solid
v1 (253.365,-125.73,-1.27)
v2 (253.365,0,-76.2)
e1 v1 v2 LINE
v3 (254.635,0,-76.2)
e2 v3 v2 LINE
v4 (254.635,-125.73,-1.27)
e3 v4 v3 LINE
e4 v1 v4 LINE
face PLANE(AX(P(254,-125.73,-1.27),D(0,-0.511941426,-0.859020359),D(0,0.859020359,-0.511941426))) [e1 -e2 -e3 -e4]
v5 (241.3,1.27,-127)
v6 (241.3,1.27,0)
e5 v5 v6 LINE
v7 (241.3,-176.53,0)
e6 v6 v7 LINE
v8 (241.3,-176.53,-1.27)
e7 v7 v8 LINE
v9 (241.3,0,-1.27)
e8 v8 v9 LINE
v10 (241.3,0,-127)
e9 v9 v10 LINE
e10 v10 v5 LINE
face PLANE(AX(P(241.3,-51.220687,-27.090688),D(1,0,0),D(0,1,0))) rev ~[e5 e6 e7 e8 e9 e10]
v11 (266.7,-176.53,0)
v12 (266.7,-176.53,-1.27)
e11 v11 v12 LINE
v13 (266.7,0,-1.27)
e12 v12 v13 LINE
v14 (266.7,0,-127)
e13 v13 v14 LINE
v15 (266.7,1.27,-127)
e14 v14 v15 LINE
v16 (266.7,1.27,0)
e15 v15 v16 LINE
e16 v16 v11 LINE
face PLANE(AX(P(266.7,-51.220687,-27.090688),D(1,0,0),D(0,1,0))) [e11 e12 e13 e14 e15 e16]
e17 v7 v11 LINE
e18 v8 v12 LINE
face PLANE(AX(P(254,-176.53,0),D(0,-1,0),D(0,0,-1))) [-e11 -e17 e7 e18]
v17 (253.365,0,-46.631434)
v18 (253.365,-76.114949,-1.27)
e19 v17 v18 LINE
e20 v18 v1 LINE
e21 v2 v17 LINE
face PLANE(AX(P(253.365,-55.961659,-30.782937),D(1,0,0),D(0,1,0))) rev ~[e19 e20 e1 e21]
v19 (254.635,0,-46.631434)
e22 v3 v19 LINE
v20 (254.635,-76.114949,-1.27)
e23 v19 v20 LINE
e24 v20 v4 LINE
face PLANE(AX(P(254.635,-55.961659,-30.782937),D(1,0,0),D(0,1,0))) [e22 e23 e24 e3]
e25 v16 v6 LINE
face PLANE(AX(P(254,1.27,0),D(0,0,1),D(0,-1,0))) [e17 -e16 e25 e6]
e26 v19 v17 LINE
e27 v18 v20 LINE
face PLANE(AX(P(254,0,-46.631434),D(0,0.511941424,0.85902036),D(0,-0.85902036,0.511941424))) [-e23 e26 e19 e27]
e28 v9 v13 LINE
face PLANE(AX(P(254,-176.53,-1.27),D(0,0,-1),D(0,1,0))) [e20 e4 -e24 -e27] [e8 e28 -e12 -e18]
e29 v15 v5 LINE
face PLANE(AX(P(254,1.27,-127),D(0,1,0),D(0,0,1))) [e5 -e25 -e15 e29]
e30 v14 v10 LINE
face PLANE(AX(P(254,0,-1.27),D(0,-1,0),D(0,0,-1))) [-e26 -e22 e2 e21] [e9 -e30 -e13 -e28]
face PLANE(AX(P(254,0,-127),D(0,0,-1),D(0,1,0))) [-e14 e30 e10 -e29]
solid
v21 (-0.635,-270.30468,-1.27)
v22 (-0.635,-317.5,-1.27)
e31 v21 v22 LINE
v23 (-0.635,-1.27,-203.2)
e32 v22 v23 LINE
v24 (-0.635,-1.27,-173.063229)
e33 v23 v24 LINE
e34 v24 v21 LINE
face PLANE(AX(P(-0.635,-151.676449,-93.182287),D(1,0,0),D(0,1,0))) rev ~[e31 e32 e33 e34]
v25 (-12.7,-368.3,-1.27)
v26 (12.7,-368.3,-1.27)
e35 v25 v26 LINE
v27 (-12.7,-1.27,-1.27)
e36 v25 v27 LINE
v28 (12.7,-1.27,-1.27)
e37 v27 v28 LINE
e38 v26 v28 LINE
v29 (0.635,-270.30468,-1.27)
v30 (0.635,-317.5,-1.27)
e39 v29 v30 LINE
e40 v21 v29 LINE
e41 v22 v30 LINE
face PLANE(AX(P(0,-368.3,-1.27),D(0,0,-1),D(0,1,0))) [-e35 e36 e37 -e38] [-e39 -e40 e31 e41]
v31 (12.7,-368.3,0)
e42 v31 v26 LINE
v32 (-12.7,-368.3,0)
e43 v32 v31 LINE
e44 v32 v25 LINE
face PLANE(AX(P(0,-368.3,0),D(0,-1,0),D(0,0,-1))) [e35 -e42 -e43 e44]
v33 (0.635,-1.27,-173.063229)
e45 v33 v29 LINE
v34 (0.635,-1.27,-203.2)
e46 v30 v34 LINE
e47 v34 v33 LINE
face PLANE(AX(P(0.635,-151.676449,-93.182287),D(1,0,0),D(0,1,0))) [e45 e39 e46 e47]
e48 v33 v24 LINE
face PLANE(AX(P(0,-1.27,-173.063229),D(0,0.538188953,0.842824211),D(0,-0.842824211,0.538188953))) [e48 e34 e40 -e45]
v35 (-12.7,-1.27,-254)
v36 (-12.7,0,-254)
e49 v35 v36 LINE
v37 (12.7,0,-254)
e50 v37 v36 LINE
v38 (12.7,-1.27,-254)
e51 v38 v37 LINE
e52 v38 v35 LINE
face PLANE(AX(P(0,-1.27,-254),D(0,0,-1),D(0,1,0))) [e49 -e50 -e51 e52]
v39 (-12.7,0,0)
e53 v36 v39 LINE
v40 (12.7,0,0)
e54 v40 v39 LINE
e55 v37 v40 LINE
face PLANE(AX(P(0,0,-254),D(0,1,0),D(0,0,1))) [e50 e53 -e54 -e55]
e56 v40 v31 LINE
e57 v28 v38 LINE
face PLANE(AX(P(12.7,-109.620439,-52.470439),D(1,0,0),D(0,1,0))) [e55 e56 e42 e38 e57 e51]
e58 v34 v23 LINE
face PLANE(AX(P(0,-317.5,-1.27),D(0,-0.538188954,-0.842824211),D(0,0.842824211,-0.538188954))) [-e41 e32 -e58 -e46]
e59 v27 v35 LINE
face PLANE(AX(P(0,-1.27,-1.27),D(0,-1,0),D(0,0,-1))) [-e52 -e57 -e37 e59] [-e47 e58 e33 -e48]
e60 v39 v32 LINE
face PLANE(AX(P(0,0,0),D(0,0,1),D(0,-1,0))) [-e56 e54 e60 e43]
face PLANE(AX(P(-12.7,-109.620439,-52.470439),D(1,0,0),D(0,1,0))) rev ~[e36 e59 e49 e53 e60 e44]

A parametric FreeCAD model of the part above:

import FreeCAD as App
import Part
import Sketcher
from FreeCAD import Vector
Q = App.Units.Quantity

doc = App.newDocument("Part")
body = doc.addObject("PartDesign::Body", "Body")

sketch1 = body.newObject("Sketcher::SketchObject", "Sketch")
sketch1.AttachmentSupport = (doc.getObject("YZ_Plane"), [""])
sketch1.MapMode = "FlatFace"
sketch1.addGeometry(Part.LineSegment(Vector(0, 0, 0), Vector(-368.3, 0, 0)), False)
sketch1.addGeometry(Part.LineSegment(Vector(-368.3, 0, 0), Vector(-368.3, -1.3, 0)), False)
sketch1.addGeometry(Part.LineSegment(Vector(-368.3, -1.3, 0), Vector(-1.3, -1.3, 0)), False)
sketch1.addGeometry(Part.LineSegment(Vector(-1.3, -1.3, 0), Vector(-1.3, -254, 0)), False)
sketch1.addGeometry(Part.LineSegment(Vector(-1.3, -254, 0), Vector(0, -254, 0)), False)
sketch1.addGeometry(Part.LineSegment(Vector(0, -254, 0), Vector(0, 0, 0)), False)
sketch1.addConstraint(Sketcher.Constraint("Coincident", 0, 2, 1, 1))
sketch1.addConstraint(Sketcher.Constraint("Coincident", 1, 2, 2, 1))
sketch1.addConstraint(Sketcher.Constraint("Coincident", 2, 2, 3, 1))
sketch1.addConstraint(Sketcher.Constraint("Coincident", 3, 2, 4, 1))
sketch1.addConstraint(Sketcher.Constraint("Coincident", 4, 2, 5, 1))
sketch1.addConstraint(Sketcher.Constraint("Coincident", 5, 2, 0, 1))
sketch1.addConstraint(Sketcher.Constraint("Horizontal", 0))
sketch1.addConstraint(Sketcher.Constraint("Vertical", 1))
sketch1.addConstraint(Sketcher.Constraint("Horizontal", 2))
sketch1.addConstraint(Sketcher.Constraint("Vertical", 3))
sketch1.addConstraint(Sketcher.Constraint("Horizontal", 4))
sketch1.addConstraint(Sketcher.Constraint("Vertical", 5))
sketch1.addConstraint(Sketcher.Constraint("Coincident", 5, 2, -1, 1))
sketch1.addConstraint(Sketcher.Constraint("Equal", 4, 1))
sketch1.addConstraint(Sketcher.Constraint("DistanceY", 5, 1, 5, 2, Q("10 in")))
sketch1.addConstraint(Sketcher.Constraint("DistanceX", 0, 2, 0, 1, Q("14.5 in")))
sketch1.addConstraint(Sketcher.Constraint("DistanceX", 2, 1, 2, 2, Q("14.45 in")))
pad1 = body.newObject("PartDesign::Pad", "Pad")
pad1.Profile = sketch1
pad1.Length = Q("1 in")
pad1.Midplane = True

sketch2 = body.newObject("Sketcher::SketchObject", "Sketch001")
sketch2.AttachmentSupport = (doc.getObject("YZ_Plane"), [""])
sketch2.MapMode = "FlatFace"
sketch2.addGeometry(Part.LineSegment(Vector(-1, -173, 0), Vector(-270, -1, 0)), False)
sketch2.addGeometry(Part.LineSegment(Vector(-270, -1, 0), Vector(-318, -1, 0)), False)
sketch2.addGeometry(Part.LineSegment(Vector(-318, -1, 0), Vector(-1, -203, 0)), False)
sketch2.addGeometry(Part.LineSegment(Vector(-1, -203, 0), Vector(-1, -173, 0)), False)
sketch2.addConstraint(Sketcher.Constraint("Coincident", 0, 2, 1, 1))
sketch2.addConstraint(Sketcher.Constraint("Coincident", 1, 2, 2, 1))
sketch2.addConstraint(Sketcher.Constraint("Coincident", 2, 2, 3, 1))
sketch2.addConstraint(Sketcher.Constraint("Coincident", 3, 2, 0, 1))
sketch2.addConstraint(Sketcher.Constraint("Horizontal", 1))
sketch2.addConstraint(Sketcher.Constraint("Vertical", 3))
sketch2.addConstraint(Sketcher.Constraint("Parallel", 0, 2))
sketch2.addConstraint(Sketcher.Constraint("DistanceY", 2, 2, -1, 1, Q("8 in")))
sketch2.addConstraint(Sketcher.Constraint("DistanceX", 1, 2, -1, 1, Q("12.5 in")))
sketch2.addConstraint(Sketcher.Constraint("DistanceY", 0, 2, -1, 1, Q("0.05 in")))
sketch2.addConstraint(Sketcher.Constraint("DistanceX", 2, 2, -1, 1, Q("0.05 in")))
sketch2.addConstraint(Sketcher.Constraint("DistanceX", 1, 2, 1, 1, 47.19532))
pad2 = body.newObject("PartDesign::Pad", "Pad001")
pad2.Profile = sketch2
pad2.Length = Q("0.05 in")
pad2.Midplane = True
body2 = doc.addObject("PartDesign::Body", "Body001")

sketch3 = body2.newObject("Sketcher::SketchObject", "Sketch002")
sketch3.AttachmentSupport = (doc.getObject("YZ_Plane001"), [""])
sketch3.MapMode = "FlatFace"
sketch3.AttachmentOffset = App.Placement(Vector(0, 0, 10 * 25.4), App.Rotation())
sketch3.addGeometry(Part.LineSegment(Vector(1.3, 0, 0), Vector(-176.5, 0, 0)), False)
sketch3.addGeometry(Part.LineSegment(Vector(-176.5, 0, 0), Vector(-176.5, -1.3, 0)), False)
sketch3.addGeometry(Part.LineSegment(Vector(-176.5, -1.3, 0), Vector(0, -1.3, 0)), False)
sketch3.addGeometry(Part.LineSegment(Vector(0, -1.3, 0), Vector(0, -127, 0)), False)
sketch3.addGeometry(Part.LineSegment(Vector(0, -127, 0), Vector(1.3, -127, 0)), False)
sketch3.addGeometry(Part.LineSegment(Vector(1.3, -127, 0), Vector(1.3, 0, 0)), False)
sketch3.addConstraint(Sketcher.Constraint("Coincident", 0, 2, 1, 1))
sketch3.addConstraint(Sketcher.Constraint("Coincident", 1, 2, 2, 1))
sketch3.addConstraint(Sketcher.Constraint("Coincident", 2, 2, 3, 1))
sketch3.addConstraint(Sketcher.Constraint("Coincident", 3, 2, 4, 1))
sketch3.addConstraint(Sketcher.Constraint("Coincident", 4, 2, 5, 1))
sketch3.addConstraint(Sketcher.Constraint("Coincident", 5, 2, 0, 1))
sketch3.addConstraint(Sketcher.Constraint("Horizontal", 0))
sketch3.addConstraint(Sketcher.Constraint("Vertical", 1))
sketch3.addConstraint(Sketcher.Constraint("Horizontal", 2))
sketch3.addConstraint(Sketcher.Constraint("Vertical", 3))
sketch3.addConstraint(Sketcher.Constraint("Horizontal", 4))
sketch3.addConstraint(Sketcher.Constraint("Vertical", 5))
sketch3.addConstraint(Sketcher.Constraint("PointOnObject", 0, 2, -1))
sketch3.addConstraint(Sketcher.Constraint("PointOnObject", 2, 2, -2))
sketch3.addConstraint(Sketcher.Constraint("Equal", 4, 1))
sketch3.addConstraint(Sketcher.Constraint("DistanceX", 0, 2, 0, 1, Q("7 in")))
sketch3.addConstraint(Sketcher.Constraint("DistanceY", 5, 1, 5, 2, Q("5 in")))
sketch3.addConstraint(Sketcher.Constraint("DistanceX", 2, 1, 2, 2, Q("6.95 in")))
pad3 = body2.newObject("PartDesign::Pad", "Pad002")
pad3.Profile = sketch3
pad3.Length = Q("1 in")
pad3.Midplane = True

sketch4 = body2.newObject("Sketcher::SketchObject", "Sketch003")
sketch4.AttachmentSupport = (doc.getObject("YZ_Plane001"), [""])
sketch4.MapMode = "FlatFace"
sketch4.AttachmentOffset = App.Placement(Vector(0, 0, 10 * 25.4), App.Rotation())
sketch4.addGeometry(Part.LineSegment(Vector(0, -47, 0), Vector(-76, -1, 0)), False)
sketch4.addGeometry(Part.LineSegment(Vector(-76, -1, 0), Vector(-126, -1, 0)), False)
sketch4.addGeometry(Part.LineSegment(Vector(-126, -1, 0), Vector(0, -76, 0)), False)
sketch4.addGeometry(Part.LineSegment(Vector(0, -76, 0), Vector(0, -47, 0)), False)
sketch4.addConstraint(Sketcher.Constraint("Coincident", 0, 2, 1, 1))
sketch4.addConstraint(Sketcher.Constraint("Coincident", 1, 2, 2, 1))
sketch4.addConstraint(Sketcher.Constraint("Coincident", 2, 2, 3, 1))
sketch4.addConstraint(Sketcher.Constraint("Coincident", 3, 2, 0, 1))
sketch4.addConstraint(Sketcher.Constraint("Horizontal", 1))
sketch4.addConstraint(Sketcher.Constraint("Vertical", 3))
sketch4.addConstraint(Sketcher.Constraint("PointOnObject", 2, 2, -2))
sketch4.addConstraint(Sketcher.Constraint("Parallel", 0, 2))
sketch4.addConstraint(Sketcher.Constraint("DistanceY", 2, 2, -1, 1, Q("3 in")))
sketch4.addConstraint(Sketcher.Constraint("DistanceY", 0, 2, -1, 1, Q("0.05 in")))
sketch4.addConstraint(Sketcher.Constraint("DistanceX", 1, 2, -1, 1, Q("4.95 in")))
sketch4.addConstraint(Sketcher.Constraint("DistanceX", 1, 2, 1, 1, 49.615051))
pad4 = body2.newObject("PartDesign::Pad", "Pad003")
pad4.Profile = sketch4
pad4.Length = Q("0.05 in")
pad4.Midplane = True

doc.recompute()
